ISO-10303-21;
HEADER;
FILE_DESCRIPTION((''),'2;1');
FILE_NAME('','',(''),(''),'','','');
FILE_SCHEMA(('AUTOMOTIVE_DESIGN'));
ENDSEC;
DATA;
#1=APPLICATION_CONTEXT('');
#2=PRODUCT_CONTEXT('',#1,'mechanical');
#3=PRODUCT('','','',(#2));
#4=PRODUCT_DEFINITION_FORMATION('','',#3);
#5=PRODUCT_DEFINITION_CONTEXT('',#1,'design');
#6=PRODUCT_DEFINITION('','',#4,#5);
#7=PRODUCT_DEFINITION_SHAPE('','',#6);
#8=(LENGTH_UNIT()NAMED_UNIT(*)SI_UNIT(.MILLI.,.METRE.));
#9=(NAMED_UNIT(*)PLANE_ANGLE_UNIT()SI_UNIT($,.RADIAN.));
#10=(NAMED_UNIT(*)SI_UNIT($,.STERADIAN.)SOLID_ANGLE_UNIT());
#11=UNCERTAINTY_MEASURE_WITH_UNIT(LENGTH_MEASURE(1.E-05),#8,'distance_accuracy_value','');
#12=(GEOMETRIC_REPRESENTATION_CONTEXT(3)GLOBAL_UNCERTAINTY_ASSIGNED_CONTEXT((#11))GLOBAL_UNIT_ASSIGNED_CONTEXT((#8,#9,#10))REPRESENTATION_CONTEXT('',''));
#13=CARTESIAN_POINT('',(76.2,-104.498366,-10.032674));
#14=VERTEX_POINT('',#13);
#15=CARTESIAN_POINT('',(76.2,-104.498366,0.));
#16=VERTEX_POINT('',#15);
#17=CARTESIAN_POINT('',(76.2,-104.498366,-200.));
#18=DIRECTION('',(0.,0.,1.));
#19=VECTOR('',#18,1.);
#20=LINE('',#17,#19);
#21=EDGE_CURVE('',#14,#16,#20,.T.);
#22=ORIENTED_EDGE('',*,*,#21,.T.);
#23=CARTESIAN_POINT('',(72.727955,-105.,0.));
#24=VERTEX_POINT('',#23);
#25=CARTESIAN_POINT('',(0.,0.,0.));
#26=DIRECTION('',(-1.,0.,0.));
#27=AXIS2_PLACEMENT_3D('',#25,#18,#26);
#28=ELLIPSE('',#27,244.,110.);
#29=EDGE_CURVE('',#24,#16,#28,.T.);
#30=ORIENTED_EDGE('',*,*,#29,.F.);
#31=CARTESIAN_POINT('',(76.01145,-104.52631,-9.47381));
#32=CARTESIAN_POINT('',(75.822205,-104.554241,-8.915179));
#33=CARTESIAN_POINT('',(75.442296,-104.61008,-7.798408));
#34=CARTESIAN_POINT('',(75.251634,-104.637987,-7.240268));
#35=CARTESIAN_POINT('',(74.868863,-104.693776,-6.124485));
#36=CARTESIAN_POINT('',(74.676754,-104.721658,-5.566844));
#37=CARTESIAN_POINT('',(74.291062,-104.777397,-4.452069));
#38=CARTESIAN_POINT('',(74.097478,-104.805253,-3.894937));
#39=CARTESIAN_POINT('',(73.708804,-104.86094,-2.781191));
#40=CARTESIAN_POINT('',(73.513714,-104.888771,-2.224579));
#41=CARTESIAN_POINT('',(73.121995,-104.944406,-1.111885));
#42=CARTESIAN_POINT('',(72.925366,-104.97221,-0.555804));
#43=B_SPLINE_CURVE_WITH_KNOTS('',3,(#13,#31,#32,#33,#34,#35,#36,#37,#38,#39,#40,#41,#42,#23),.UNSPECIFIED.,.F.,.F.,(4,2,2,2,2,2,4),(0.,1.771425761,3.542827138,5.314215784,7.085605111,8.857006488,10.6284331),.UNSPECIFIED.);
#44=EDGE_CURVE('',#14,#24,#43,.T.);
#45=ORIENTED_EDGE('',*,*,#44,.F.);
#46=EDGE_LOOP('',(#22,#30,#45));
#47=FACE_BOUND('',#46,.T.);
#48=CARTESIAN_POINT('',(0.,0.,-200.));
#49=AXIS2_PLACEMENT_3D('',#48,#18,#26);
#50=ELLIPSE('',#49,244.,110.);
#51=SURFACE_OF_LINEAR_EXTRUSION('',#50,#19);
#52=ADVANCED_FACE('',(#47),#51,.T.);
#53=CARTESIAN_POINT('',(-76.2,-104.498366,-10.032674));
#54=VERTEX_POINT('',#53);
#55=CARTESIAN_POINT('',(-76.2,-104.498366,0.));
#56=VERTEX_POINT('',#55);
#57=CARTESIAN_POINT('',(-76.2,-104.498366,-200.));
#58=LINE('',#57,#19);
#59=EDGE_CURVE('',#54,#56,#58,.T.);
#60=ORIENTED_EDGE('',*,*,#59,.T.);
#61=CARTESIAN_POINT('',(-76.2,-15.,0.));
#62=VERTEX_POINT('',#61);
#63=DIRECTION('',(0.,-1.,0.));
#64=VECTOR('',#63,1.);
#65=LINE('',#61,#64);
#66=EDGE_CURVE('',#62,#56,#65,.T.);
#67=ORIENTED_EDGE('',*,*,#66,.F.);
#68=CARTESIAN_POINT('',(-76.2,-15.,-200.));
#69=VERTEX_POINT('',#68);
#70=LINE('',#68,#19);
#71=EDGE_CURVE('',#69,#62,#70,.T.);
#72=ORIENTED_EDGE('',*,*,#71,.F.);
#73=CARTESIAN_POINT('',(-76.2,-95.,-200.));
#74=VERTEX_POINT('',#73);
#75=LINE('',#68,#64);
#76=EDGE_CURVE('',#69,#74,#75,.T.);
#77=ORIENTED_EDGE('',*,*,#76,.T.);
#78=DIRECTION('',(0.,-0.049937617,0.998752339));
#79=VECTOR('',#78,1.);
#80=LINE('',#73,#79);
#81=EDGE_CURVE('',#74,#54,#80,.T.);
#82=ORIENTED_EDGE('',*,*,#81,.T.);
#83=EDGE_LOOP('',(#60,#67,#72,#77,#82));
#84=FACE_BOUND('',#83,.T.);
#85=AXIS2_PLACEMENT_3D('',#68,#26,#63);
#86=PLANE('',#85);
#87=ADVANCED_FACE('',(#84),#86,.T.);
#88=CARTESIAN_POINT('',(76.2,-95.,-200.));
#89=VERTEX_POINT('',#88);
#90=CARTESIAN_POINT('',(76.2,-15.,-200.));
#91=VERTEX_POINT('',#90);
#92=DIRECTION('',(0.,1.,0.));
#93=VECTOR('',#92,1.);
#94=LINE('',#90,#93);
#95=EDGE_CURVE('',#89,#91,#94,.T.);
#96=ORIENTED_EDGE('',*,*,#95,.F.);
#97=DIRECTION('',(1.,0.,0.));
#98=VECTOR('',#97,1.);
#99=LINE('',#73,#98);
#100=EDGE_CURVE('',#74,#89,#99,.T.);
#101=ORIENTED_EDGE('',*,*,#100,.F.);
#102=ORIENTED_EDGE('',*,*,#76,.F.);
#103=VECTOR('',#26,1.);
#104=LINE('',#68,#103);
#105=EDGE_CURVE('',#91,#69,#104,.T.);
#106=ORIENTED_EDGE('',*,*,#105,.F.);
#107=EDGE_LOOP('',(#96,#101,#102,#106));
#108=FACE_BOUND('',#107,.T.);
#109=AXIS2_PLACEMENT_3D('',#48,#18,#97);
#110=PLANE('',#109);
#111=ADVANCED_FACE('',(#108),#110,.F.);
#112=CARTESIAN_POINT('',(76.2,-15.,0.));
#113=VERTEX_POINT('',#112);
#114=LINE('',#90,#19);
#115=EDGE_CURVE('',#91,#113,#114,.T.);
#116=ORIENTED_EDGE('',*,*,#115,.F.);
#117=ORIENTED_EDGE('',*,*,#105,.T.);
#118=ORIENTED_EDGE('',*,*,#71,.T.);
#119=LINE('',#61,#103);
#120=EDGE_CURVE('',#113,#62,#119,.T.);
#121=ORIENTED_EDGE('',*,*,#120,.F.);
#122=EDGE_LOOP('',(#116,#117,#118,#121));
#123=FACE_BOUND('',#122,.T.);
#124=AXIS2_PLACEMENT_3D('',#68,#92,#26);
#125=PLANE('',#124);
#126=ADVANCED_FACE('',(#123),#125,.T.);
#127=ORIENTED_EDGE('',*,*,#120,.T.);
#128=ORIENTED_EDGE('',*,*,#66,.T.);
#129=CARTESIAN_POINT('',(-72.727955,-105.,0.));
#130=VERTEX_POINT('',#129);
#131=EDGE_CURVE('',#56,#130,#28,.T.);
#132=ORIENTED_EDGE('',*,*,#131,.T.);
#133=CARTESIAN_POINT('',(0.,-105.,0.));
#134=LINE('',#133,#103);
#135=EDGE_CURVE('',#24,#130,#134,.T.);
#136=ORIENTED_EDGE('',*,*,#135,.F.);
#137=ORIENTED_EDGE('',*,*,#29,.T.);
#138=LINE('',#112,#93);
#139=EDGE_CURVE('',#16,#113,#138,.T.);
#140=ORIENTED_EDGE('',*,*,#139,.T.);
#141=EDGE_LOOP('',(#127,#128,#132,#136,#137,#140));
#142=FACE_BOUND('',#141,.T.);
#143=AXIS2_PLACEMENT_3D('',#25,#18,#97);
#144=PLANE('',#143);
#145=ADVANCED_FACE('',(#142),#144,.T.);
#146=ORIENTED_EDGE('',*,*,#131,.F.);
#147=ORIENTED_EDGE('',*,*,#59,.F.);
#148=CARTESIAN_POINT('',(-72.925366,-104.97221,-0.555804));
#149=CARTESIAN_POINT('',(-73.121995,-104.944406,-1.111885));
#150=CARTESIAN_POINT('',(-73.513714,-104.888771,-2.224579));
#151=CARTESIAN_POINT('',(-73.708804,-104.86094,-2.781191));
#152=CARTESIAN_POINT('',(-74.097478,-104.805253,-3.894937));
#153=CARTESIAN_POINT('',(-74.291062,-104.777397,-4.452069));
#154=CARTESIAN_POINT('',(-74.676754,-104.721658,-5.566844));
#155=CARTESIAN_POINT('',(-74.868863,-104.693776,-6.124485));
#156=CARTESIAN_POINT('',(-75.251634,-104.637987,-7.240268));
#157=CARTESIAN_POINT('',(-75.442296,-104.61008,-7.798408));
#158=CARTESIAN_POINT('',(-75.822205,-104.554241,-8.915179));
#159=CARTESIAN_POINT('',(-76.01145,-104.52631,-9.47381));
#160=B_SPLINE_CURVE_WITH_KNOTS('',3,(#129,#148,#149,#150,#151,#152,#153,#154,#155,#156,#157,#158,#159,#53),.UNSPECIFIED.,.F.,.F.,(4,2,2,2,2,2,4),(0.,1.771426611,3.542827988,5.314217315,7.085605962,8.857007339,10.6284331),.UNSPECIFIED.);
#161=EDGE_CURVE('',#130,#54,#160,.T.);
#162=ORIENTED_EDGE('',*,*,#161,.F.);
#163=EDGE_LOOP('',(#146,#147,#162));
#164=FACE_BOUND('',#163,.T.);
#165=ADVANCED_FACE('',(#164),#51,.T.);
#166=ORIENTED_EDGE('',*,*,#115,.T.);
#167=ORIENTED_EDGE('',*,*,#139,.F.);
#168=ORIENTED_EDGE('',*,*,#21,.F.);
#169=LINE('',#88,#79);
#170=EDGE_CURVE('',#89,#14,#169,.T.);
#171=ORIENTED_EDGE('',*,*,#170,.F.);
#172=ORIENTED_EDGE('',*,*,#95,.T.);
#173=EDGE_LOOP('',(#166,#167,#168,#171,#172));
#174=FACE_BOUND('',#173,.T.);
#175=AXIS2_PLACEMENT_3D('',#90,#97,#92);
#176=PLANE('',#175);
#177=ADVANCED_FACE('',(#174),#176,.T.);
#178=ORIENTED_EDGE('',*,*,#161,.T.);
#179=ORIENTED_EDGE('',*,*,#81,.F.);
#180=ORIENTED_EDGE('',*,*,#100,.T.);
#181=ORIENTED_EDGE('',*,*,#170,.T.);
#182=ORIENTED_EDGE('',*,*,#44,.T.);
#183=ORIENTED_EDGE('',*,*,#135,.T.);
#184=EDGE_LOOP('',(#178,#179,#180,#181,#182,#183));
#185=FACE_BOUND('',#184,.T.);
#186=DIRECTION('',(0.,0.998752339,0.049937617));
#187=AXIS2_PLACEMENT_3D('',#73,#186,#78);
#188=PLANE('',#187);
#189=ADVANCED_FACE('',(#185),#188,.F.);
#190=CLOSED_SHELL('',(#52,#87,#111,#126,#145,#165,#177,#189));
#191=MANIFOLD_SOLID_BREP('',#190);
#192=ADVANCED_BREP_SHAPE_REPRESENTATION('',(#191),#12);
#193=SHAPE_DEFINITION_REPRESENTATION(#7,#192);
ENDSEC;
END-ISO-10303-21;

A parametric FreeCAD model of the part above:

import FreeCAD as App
import Part
import Sketcher


def add_polygon(sketch, points):
    """Adds a closed chain of lines whose ends are joined by coincident constraints."""
    first, n = sketch.GeometryCount, len(points)
    for a, b in zip(points, points[1:] + points[:1]):
        sketch.addGeometry(Part.LineSegment(App.Vector(*a, 0), App.Vector(*b, 0)), False)
    for i in range(n):
        sketch.addConstraint(Sketcher.Constraint("Coincident", first + i, 2, first + (i + 1) % n, 1))

doc = App.newDocument("Part")
body = doc.addObject("PartDesign::Body", "Body")

sketch1 = doc.addObject("Sketcher::SketchObject", "Sketch")
body.addObject(sketch1)
sketch1.AttachmentSupport = (doc.XY_Plane, [""])
sketch1.MapMode = "FlatFace"
sketch1.addGeometry([
    Part.LineSegment(App.Vector(76.2, -15, 0), App.Vector(-76.2, -15, 0)),
    Part.LineSegment(App.Vector(-76.2, -15, 0), App.Vector(-76.2, -104.498366, 0)),
    Part.BSplineCurve([App.Vector(-76.2, -104.498366, 0), App.Vector(0, -115.791284, 0), App.Vector(76.2, -104.498366, 0)], [3, 3], [1.253188337, 1.888404317], False, 2, [1, 0.949985148, 1], False),
    Part.LineSegment(App.Vector(76.2, -104.498366, 0), App.Vector(76.2, -15, 0)),
], False)
sketch1.addConstraint([
    Sketcher.Constraint("Block", 2),
    Sketcher.Constraint("Coincident", 0, 2, 1, 1),
    Sketcher.Constraint("Coincident", 1, 2, 2, 1),
    Sketcher.Constraint("Coincident", 2, 2, 3, 1),
    Sketcher.Constraint("Coincident", 3, 2, 0, 1),
    Sketcher.Constraint("Horizontal", 0),
    Sketcher.Constraint("Vertical", 1),
    Sketcher.Constraint("Vertical", 3),
    Sketcher.Constraint("DistanceY", 0, 2, -1, 1, 15.0),
])
pad1 = doc.addObject("PartDesign::Pad", "Pad")
body.addObject(pad1)
pad1.Profile = sketch1
pad1.Length = 200
pad1.Reversed = True

sketch2 = doc.addObject("Sketcher::SketchObject", "Sketch001")
body.addObject(sketch2)
sketch2.AttachmentSupport = (doc.YZ_Plane, [""])
sketch2.MapMode = "FlatFace"
add_polygon(sketch2, [(-110, 0), (-110, -200), (-95, -200), (-105, 0)])
sketch2.addConstraint([
    Sketcher.Constraint("Vertical", 0),
    Sketcher.Constraint("Horizontal", 1),
    Sketcher.Constraint("Horizontal", 3),
    Sketcher.Constraint("PointOnObject", 2, 2, -1),
    Sketcher.Constraint("DistanceX", 1, 1, 1, 2, 15.0),
    Sketcher.Constraint("DistanceX", 3, 2, 3, 1, 5.0),
    Sketcher.Constraint("DistanceY", 0, 2, 0, 1, 200.0),
    Sketcher.Constraint("DistanceX", 0, 2, -1, 1, 110.0),
])
pocket1 = doc.addObject("PartDesign::Pocket", "Pocket")
body.addObject(pocket1)
pocket1.Profile = sketch2
pocket1.Type = "ThroughAll"
pocket1.Midplane = True

doc.recompute()
